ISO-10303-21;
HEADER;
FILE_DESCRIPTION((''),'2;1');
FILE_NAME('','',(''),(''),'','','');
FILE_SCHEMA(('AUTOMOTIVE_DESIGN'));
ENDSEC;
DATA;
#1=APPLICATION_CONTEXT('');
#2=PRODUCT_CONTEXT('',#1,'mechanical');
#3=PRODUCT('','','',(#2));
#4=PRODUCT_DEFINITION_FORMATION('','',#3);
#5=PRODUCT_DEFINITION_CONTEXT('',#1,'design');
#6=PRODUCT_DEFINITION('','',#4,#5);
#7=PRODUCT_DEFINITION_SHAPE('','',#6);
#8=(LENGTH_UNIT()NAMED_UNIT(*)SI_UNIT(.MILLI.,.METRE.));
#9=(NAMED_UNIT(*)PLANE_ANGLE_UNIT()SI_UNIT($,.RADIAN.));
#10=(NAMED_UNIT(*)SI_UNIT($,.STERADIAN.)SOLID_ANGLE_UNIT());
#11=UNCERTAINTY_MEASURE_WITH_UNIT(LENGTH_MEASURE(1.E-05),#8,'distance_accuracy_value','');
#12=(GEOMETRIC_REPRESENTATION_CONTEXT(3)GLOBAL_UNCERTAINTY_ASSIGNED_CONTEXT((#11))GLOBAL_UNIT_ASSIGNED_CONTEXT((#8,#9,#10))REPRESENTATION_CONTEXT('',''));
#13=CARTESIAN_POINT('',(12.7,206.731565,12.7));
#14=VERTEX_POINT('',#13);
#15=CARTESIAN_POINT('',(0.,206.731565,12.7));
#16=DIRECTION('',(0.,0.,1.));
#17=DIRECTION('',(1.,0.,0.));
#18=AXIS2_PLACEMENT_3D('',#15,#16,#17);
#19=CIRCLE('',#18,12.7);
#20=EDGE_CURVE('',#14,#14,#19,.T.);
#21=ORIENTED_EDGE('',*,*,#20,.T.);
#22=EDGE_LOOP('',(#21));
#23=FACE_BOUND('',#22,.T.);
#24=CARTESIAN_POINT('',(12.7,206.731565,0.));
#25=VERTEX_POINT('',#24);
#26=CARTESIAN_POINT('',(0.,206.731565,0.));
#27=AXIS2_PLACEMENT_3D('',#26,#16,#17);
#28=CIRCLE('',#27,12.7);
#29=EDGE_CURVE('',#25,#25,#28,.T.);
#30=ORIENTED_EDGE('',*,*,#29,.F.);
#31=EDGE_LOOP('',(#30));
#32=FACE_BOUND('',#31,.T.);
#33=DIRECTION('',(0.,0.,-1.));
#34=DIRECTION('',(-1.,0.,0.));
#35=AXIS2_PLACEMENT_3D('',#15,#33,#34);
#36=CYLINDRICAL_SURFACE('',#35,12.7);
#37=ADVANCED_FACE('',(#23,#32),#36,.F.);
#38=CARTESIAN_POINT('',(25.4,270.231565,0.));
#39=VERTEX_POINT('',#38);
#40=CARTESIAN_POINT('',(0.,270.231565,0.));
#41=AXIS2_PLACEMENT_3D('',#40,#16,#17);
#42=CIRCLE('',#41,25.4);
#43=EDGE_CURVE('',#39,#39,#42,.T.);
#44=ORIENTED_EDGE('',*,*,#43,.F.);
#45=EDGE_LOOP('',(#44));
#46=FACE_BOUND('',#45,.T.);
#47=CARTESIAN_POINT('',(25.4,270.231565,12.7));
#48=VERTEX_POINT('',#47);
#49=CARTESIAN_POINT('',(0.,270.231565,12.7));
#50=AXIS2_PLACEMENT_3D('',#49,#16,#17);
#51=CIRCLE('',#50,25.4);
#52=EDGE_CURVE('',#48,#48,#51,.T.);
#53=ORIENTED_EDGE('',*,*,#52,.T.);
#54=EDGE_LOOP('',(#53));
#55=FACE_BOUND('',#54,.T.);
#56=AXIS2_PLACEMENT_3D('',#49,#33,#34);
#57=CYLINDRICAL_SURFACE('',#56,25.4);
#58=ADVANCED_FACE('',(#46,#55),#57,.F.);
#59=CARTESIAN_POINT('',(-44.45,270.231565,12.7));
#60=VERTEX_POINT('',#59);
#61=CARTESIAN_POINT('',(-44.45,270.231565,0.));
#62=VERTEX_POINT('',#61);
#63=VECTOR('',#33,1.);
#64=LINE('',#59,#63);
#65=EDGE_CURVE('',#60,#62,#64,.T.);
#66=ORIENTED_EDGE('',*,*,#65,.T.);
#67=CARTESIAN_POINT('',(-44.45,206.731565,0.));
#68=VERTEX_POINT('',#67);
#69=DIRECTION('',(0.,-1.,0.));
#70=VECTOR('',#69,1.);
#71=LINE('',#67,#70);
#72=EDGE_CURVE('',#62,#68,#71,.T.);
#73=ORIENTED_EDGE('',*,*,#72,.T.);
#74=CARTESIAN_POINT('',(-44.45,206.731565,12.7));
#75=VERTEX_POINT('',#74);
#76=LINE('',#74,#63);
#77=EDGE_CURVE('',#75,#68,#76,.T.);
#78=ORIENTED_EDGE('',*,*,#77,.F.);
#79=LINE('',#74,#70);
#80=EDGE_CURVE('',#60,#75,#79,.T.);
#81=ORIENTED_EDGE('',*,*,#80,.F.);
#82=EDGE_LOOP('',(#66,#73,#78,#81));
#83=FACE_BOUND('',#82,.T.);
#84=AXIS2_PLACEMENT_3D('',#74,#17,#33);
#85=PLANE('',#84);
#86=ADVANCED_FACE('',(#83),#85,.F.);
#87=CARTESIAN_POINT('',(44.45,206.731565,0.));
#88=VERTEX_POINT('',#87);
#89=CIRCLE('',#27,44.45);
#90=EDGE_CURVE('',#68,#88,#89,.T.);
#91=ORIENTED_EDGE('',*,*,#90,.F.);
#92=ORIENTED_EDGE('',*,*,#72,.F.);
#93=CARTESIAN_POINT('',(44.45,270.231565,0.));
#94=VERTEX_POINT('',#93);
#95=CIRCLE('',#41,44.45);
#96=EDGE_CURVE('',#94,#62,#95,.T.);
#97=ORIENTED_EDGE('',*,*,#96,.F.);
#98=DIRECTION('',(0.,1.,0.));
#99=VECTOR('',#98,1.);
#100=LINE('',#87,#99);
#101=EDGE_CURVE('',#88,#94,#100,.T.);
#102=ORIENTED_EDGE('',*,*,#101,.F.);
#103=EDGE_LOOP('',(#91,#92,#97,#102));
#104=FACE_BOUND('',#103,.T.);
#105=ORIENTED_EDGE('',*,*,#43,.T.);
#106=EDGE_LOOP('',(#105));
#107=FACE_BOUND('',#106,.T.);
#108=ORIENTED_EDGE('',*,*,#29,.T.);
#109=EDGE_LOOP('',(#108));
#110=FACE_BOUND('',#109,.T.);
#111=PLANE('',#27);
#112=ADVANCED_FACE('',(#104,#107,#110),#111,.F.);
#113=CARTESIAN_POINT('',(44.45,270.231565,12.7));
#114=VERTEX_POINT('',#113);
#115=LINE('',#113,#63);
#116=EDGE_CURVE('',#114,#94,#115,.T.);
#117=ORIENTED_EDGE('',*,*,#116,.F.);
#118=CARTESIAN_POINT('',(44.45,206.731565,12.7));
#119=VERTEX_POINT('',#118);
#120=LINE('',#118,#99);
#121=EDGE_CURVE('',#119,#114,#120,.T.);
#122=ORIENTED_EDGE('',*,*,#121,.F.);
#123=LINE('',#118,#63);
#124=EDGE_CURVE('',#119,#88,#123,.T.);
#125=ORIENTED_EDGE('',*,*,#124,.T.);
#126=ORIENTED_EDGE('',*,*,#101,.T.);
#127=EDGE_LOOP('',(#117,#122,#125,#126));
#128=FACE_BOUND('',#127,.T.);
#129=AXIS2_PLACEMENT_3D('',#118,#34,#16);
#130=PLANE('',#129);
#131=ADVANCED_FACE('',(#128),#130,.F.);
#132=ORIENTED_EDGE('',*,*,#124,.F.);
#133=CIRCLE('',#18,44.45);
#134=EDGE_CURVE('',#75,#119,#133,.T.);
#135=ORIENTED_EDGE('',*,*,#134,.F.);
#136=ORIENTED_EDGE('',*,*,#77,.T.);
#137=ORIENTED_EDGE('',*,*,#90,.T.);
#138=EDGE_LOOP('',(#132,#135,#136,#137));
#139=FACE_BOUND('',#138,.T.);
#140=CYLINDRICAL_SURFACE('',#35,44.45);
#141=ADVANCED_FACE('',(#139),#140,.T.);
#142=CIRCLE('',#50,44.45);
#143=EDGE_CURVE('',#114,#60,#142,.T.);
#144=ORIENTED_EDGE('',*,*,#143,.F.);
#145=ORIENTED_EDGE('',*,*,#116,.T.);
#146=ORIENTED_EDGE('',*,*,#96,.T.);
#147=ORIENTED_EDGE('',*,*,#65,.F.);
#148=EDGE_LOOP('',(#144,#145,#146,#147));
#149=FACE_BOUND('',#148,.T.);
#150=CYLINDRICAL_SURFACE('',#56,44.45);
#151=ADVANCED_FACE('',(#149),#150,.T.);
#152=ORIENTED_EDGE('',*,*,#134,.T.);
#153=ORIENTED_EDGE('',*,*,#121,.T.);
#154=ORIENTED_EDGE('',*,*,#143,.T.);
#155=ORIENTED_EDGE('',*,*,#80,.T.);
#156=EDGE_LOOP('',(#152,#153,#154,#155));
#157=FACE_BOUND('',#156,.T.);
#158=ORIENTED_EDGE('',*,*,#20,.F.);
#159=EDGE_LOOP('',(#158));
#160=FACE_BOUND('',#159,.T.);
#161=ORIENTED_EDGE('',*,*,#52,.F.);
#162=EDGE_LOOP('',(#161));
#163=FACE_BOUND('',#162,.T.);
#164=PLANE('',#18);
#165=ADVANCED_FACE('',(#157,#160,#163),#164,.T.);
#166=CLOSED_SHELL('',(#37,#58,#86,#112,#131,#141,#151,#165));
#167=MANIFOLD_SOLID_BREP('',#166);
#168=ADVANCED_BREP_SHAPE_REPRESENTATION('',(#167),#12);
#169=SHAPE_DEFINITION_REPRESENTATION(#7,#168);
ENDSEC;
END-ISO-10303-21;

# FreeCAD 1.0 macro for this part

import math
import FreeCAD as App
import Part
import Sketcher
Q = App.Units.Quantity

doc = App.newDocument("Part")
body = doc.addObject("PartDesign::Body", "Body")

# Sketch on XY plane
sketch1 = doc.addObject("Sketcher::SketchObject", "Sketch")
body.addObject(sketch1)
sketch1.AttachmentSupport = (doc.XY_Plane, [""])
sketch1.MapMode = "FlatFace"
sketch1.addGeometry([
    Part.LineSegment(App.Vector(-44, 270, 0), App.Vector(-44, 207, 0)),  # 0
    Part.ArcOfCircle(Part.Circle(App.Vector(0, 207, 0), App.Vector(0, 0, 1), 44), math.radians(180), math.radians(360)),  # 1
    Part.LineSegment(App.Vector(44, 207, 0), App.Vector(44, 270, 0)),  # 2
    Part.ArcOfCircle(Part.Circle(App.Vector(0, 270, 0), App.Vector(0, 0, 1), 44), math.radians(0), math.radians(180)),  # 3
    Part.Circle(App.Vector(0, 207, 0), App.Vector(0, 0, 1), 13),  # 4
    Part.Circle(App.Vector(0, 270, 0), App.Vector(0, 0, 1), 25),  # 5
], False)
sketch1.addConstraint([
    Sketcher.Constraint("Tangent", 0, 2, 1, 1),
    Sketcher.Constraint("Tangent", 1, 2, 2, 1),
    Sketcher.Constraint("Tangent", 2, 2, 3, 1),
    Sketcher.Constraint("Tangent", 3, 2, 0, 1),
    Sketcher.Constraint("Vertical", 0),
    Sketcher.Constraint("Vertical", 2),
    Sketcher.Constraint("Coincident", 4, 3, 1, 3),
    Sketcher.Constraint("Coincident", 5, 3, 3, 3),
    Sketcher.Constraint("PointOnObject", 1, 3, -2),
    Sketcher.Constraint("Diameter", 4, Q("1 in")),
    Sketcher.Constraint("Diameter", 5, Q("2 in")),
    Sketcher.Constraint("Radius", 1, Q("1.75 in")),
    Sketcher.Constraint("DistanceY", 0, 2, 0, 1, Q("2.5 in")),
    Sketcher.Constraint("DistanceY", -1, 1, 1, 3, Q("206.731565 mm")),
])
pad1 = doc.addObject("PartDesign::Pad", "Pad")
body.addObject(pad1)
pad1.Profile = sketch1
pad1.Length = Q("0.5 in")

doc.recompute()
